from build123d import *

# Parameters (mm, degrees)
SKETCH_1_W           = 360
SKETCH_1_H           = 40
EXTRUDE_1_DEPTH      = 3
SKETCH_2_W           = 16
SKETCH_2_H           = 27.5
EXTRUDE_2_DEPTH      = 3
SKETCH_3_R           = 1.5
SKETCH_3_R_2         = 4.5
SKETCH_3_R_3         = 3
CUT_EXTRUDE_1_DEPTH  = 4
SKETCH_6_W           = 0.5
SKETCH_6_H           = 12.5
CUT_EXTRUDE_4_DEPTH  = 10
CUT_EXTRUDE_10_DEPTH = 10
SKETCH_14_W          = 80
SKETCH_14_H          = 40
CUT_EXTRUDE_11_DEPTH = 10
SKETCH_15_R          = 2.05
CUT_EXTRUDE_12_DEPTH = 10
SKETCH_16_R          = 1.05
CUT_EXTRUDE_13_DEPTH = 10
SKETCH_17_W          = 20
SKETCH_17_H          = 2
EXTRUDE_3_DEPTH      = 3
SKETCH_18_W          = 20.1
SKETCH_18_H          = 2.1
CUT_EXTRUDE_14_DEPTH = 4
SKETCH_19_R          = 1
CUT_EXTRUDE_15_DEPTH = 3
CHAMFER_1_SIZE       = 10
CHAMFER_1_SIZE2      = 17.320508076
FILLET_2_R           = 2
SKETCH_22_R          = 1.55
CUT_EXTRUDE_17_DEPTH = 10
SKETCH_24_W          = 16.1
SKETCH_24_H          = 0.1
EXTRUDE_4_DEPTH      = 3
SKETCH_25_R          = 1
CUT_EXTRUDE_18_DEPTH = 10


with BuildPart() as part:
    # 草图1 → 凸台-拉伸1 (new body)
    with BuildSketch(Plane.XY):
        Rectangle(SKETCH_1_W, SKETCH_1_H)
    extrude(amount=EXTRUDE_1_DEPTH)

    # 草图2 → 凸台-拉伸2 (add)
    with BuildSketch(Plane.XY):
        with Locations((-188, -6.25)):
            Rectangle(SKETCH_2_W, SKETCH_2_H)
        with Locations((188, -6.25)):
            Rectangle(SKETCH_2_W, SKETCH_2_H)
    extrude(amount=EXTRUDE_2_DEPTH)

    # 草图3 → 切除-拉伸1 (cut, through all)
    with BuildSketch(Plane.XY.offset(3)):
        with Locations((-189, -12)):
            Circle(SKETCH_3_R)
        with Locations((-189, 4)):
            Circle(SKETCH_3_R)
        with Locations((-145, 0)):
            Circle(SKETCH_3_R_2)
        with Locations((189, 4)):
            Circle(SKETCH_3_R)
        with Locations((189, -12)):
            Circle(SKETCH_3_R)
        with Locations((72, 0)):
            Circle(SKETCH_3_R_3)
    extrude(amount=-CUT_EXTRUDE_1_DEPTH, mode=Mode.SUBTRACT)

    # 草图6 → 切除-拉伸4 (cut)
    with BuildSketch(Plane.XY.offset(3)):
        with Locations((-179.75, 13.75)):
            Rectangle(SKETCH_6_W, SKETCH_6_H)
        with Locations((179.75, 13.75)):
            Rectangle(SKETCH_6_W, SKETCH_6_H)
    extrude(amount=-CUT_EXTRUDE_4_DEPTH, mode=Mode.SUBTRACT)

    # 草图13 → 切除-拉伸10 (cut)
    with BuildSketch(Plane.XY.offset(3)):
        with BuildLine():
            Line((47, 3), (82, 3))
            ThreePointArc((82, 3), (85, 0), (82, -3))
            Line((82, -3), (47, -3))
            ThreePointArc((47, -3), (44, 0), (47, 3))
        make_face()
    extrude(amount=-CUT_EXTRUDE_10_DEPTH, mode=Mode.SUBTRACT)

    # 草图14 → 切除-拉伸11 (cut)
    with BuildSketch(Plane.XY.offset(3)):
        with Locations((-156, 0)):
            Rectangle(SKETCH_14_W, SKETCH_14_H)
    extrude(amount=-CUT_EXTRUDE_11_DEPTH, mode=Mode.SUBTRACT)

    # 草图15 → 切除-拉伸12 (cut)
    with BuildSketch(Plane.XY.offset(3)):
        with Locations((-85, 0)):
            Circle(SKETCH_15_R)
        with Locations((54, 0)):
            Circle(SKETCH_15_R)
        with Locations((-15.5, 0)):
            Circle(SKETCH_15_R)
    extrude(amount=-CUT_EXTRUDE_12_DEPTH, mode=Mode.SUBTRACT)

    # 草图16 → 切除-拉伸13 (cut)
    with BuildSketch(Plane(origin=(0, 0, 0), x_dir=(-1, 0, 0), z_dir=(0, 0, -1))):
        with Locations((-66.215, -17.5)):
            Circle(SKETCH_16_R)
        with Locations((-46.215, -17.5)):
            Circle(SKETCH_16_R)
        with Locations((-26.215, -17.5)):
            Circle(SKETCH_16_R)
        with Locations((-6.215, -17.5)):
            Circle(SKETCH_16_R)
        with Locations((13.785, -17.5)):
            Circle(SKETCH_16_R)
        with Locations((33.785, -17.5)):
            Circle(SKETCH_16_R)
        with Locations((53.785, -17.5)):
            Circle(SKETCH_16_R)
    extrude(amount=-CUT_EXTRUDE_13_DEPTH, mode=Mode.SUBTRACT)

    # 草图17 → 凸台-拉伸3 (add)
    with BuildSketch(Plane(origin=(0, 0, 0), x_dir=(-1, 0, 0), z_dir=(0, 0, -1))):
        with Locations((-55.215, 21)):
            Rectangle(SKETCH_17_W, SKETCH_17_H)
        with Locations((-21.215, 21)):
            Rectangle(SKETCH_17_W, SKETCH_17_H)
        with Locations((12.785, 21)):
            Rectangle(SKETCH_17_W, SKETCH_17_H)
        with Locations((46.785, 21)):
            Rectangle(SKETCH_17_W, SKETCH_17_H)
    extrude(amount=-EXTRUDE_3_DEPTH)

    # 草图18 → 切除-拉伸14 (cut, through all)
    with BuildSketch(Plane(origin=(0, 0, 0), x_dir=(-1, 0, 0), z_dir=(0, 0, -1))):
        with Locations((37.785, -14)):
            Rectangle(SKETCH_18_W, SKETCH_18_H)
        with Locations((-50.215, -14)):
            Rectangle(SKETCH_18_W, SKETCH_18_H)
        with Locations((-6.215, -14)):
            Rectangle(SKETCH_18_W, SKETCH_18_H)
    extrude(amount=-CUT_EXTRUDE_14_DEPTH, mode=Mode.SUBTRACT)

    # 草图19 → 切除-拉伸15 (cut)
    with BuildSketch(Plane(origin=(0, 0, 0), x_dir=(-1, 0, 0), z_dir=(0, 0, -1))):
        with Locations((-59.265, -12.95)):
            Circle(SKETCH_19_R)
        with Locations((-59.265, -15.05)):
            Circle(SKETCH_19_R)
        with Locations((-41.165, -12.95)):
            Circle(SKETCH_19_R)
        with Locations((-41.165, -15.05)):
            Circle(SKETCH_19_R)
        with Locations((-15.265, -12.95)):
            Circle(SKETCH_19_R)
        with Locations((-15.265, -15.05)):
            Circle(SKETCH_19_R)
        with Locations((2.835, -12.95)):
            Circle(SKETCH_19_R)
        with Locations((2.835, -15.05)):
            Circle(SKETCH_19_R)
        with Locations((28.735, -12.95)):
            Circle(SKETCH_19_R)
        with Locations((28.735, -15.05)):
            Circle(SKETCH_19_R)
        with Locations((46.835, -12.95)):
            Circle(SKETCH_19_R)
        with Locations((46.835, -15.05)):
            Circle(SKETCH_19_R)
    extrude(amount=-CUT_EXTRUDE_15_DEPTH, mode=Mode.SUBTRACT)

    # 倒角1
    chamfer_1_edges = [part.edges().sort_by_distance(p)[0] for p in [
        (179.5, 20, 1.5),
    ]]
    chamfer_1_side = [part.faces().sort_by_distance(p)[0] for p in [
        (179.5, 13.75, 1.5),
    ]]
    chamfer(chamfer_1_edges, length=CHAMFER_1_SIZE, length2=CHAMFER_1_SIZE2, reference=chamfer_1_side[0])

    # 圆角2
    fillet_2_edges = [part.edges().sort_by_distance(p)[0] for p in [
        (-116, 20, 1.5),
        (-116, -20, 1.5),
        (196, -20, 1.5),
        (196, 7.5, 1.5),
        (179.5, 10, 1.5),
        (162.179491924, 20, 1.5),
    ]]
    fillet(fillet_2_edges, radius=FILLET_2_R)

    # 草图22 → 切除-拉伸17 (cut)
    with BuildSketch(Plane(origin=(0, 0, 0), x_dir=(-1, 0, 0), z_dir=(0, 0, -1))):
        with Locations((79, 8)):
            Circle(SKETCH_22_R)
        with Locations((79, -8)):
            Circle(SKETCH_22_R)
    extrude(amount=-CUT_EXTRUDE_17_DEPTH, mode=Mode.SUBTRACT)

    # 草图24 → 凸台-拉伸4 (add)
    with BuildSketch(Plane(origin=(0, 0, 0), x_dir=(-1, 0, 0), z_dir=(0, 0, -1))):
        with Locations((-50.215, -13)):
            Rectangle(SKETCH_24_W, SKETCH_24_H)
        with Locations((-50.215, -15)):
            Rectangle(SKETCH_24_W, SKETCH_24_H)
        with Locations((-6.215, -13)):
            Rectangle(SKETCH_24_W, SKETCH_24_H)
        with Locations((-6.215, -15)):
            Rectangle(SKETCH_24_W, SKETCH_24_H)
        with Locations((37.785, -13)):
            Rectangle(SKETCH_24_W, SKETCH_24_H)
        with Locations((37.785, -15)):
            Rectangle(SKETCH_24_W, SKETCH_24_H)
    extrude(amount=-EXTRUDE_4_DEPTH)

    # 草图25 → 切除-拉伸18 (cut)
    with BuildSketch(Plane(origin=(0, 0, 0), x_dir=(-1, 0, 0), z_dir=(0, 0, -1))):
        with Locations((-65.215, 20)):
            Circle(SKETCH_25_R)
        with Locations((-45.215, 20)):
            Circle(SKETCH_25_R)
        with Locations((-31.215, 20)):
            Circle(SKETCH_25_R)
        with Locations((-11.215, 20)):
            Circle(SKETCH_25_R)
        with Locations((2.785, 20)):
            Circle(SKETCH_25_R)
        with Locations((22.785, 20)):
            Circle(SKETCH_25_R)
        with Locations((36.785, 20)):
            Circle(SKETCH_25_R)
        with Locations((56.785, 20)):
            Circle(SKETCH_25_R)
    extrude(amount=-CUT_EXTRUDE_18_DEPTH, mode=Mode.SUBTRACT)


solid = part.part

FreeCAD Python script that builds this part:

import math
import FreeCAD as App
import Part
import Sketcher


def edges_at(feature, points):
    """Names of the edges that pass closest to the given points."""
    edges = feature.Shape.Edges
    near = lambda p: min(range(len(edges)), key=lambda i: edges[i].distToShape(Part.Vertex(*p))[0])
    return sorted({f"Edge{near(p) + 1}" for p in points})


def add_polygon(sketch, points):
    """Adds a closed chain of lines whose ends are joined by coincident constraints."""
    first, n = sketch.GeometryCount, len(points)
    for a, b in zip(points, points[1:] + points[:1]):
        sketch.addGeometry(Part.LineSegment(App.Vector(*a, 0), App.Vector(*b, 0)), False)
    for i in range(n):
        sketch.addConstraint(Sketcher.Constraint("Coincident", first + i, 2, first + (i + 1) % n, 1))

doc = App.newDocument("Part")
body = doc.addObject("PartDesign::Body", "Body")

# Sketch on XY plane
sketch1 = doc.addObject("Sketcher::SketchObject", "Sketch")
body.addObject(sketch1)
sketch1.AttachmentSupport = (doc.XY_Plane, [""])
sketch1.MapMode = "FlatFace"
add_polygon(sketch1, [(-180, 20), (-180, -20), (180, -20), (180, 20)])  # lines 0-3
sketch1.addConstraint(Sketcher.Constraint("Vertical", 0))
sketch1.addConstraint(Sketcher.Constraint("Horizontal", 1))
sketch1.addConstraint(Sketcher.Constraint("Vertical", 2))
sketch1.addConstraint(Sketcher.Constraint("Horizontal", 3))
sketch1.addConstraint(Sketcher.Constraint("Symmetric", 0, 2, 2, 2, -1, 1))
sketch1.addConstraint(Sketcher.Constraint("DistanceX", 1, 1, 1, 2, 360.0))
sketch1.addConstraint(Sketcher.Constraint("DistanceY", 0, 2, 0, 1, 40.0))
pad1 = doc.addObject("PartDesign::Pad", "Pad")
body.addObject(pad1)
pad1.Profile = sketch1
pad1.Length = 3

# Sketch on XY plane
sketch2 = doc.addObject("Sketcher::SketchObject", "Sketch001")
body.addObject(sketch2)
sketch2.AttachmentSupport = (doc.XY_Plane, [""])
sketch2.MapMode = "FlatFace"
add_polygon(sketch2, [(-196, 8), (-196, -20), (-180, -20), (-180, 8)])  # lines 0-3
add_polygon(sketch2, [(180, 8), (180, -20), (196, -20), (196, 8)])  # lines 4-7
sketch2.addConstraint(Sketcher.Constraint("Vertical", 0))
sketch2.addConstraint(Sketcher.Constraint("Horizontal", 1))
sketch2.addConstraint(Sketcher.Constraint("Vertical", 2))
sketch2.addConstraint(Sketcher.Constraint("Horizontal", 3))
sketch2.addConstraint(Sketcher.Constraint("Vertical", 4))
sketch2.addConstraint(Sketcher.Constraint("Horizontal", 5))
sketch2.addConstraint(Sketcher.Constraint("Vertical", 6))
sketch2.addConstraint(Sketcher.Constraint("Horizontal", 7))
sketch2.addConstraint(Sketcher.Constraint("Symmetric", 1, 2, 4, 2, -2))
sketch2.addConstraint(Sketcher.Constraint("Symmetric", 3, 2, 6, 2, -2))
sketch2.addConstraint(Sketcher.Constraint("DistanceX", 1, 1, 1, 2, 16.0))
sketch2.addConstraint(Sketcher.Constraint("DistanceY", 0, 2, 0, 1, 27.5))
sketch2.addConstraint(Sketcher.Constraint("DistanceX", 0, 2, -1, 1, 196.0))
sketch2.addConstraint(Sketcher.Constraint("DistanceY", 0, 2, -1, 1, 20.0))
pad2 = doc.addObject("PartDesign::Pad", "Pad001")
body.addObject(pad2)
pad2.Profile = sketch2
pad2.Length = 3

# Sketch on XY plane
sketch3 = doc.addObject("Sketcher::SketchObject", "Sketch002")
body.addObject(sketch3)
sketch3.AttachmentSupport = (doc.XY_Plane, [""])
sketch3.MapMode = "FlatFace"
sketch3.AttachmentOffset = App.Placement(App.Vector(0, 0, 3), App.Rotation())
sketch3.addGeometry(Part.Circle(App.Vector(-189, -12, 0), App.Vector(0, 0, 1), 1.5), False)
sketch3.addGeometry(Part.Circle(App.Vector(-189, 4, 0), App.Vector(0, 0, 1), 1.5), False)
sketch3.addGeometry(Part.Circle(App.Vector(-145, 0, 0), App.Vector(0, 0, 1), 4.5), False)
sketch3.addGeometry(Part.Circle(App.Vector(189, 4, 0), App.Vector(0, 0, 1), 1.5), False)
sketch3.addGeometry(Part.Circle(App.Vector(189, -12, 0), App.Vector(0, 0, 1), 1.5), False)
sketch3.addGeometry(Part.Circle(App.Vector(72, 0, 0), App.Vector(0, 0, 1), 3), False)
sketch3.addConstraint(Sketcher.Constraint("Equal", 0, 1))
sketch3.addConstraint(Sketcher.Constraint("Equal", 1, 3))
sketch3.addConstraint(Sketcher.Constraint("Equal", 3, 4))
sketch3.addConstraint(Sketcher.Constraint("Symmetric", 1, 3, 3, 3, -2))
sketch3.addConstraint(Sketcher.Constraint("Symmetric", 0, 3, 4, 3, -2))
sketch3.addConstraint(Sketcher.Constraint("PointOnObject", 2, 3, -1))
sketch3.addConstraint(Sketcher.Constraint("PointOnObject", 5, 3, -1))
sketch3.addConstraint(Sketcher.Constraint("Vertical", 0, 3, 1, 3))
sketch3.addConstraint(Sketcher.Constraint("Diameter", 0, 3.0))
sketch3.addConstraint(Sketcher.Constraint("Diameter", 2, 9.0))
sketch3.addConstraint(Sketcher.Constraint("Diameter", 5, 6.0))
sketch3.addConstraint(Sketcher.Constraint("DistanceX", 0, 3, -1, 1, 189.0))
sketch3.addConstraint(Sketcher.Constraint("DistanceY", 0, 3, -1, 1, 12.0))
sketch3.addConstraint(Sketcher.Constraint("DistanceY", -1, 1, 1, 3, 4.0))
sketch3.addConstraint(Sketcher.Constraint("DistanceX", 2, 3, -1, 1, 145.0))
sketch3.addConstraint(Sketcher.Constraint("DistanceX", -1, 1, 5, 3, 72.0))
pocket1 = doc.addObject("PartDesign::Pocket", "Pocket")
body.addObject(pocket1)
pocket1.Profile = sketch3
pocket1.Type = "ThroughAll"

# Sketch on XY plane
sketch4 = doc.addObject("Sketcher::SketchObject", "Sketch003")
body.addObject(sketch4)
sketch4.AttachmentSupport = (doc.XY_Plane, [""])
sketch4.MapMode = "FlatFace"
sketch4.AttachmentOffset = App.Placement(App.Vector(0, 0, 3), App.Rotation())
add_polygon(sketch4, [(-180, 20), (-180, 7.5), (-179.5, 7.5), (-179.5, 20)])  # lines 0-3
add_polygon(sketch4, [(179.5, 20), (179.5, 7.5), (180, 7.5), (180, 20)])  # lines 4-7
sketch4.addConstraint(Sketcher.Constraint("Vertical", 0))
sketch4.addConstraint(Sketcher.Constraint("Horizontal", 1))
sketch4.addConstraint(Sketcher.Constraint("Vertical", 2))
sketch4.addConstraint(Sketcher.Constraint("Horizontal", 3))
sketch4.addConstraint(Sketcher.Constraint("Vertical", 4))
sketch4.addConstraint(Sketcher.Constraint("Horizontal", 5))
sketch4.addConstraint(Sketcher.Constraint("Vertical", 6))
sketch4.addConstraint(Sketcher.Constraint("Horizontal", 7))
sketch4.addConstraint(Sketcher.Constraint("Symmetric", 1, 2, 4, 2, -2))
sketch4.addConstraint(Sketcher.Constraint("Symmetric", 3, 2, 6, 2, -2))
sketch4.addConstraint(Sketcher.Constraint("DistanceX", 1, 1, 1, 2, 0.5))
sketch4.addConstraint(Sketcher.Constraint("DistanceY", 0, 2, 0, 1, 12.5))
sketch4.addConstraint(Sketcher.Constraint("DistanceX", 0, 2, -1, 1, 180.0))
sketch4.addConstraint(Sketcher.Constraint("DistanceY", -1, 1, 2, 2, 20.0))
pocket2 = doc.addObject("PartDesign::Pocket", "Pocket001")
body.addObject(pocket2)
pocket2.Profile = sketch4
pocket2.Length = 10

# Sketch on XY plane
sketch5 = doc.addObject("Sketcher::SketchObject", "Sketch004")
body.addObject(sketch5)
sketch5.AttachmentSupport = (doc.XY_Plane, [""])
sketch5.MapMode = "FlatFace"
sketch5.AttachmentOffset = App.Placement(App.Vector(0, 0, 3), App.Rotation())
sketch5.addGeometry(Part.LineSegment(App.Vector(82, 3, 0), App.Vector(47, 3, 0)), False)
sketch5.addGeometry(Part.ArcOfCircle(Part.Circle(App.Vector(47, 0, 0), App.Vector(0, 0, 1), 3), math.radians(90), math.radians(270)), False)
sketch5.addGeometry(Part.LineSegment(App.Vector(47, -3, 0), App.Vector(82, -3, 0)), False)
sketch5.addGeometry(Part.ArcOfCircle(Part.Circle(App.Vector(82, 0, 0), App.Vector(0, 0, 1), 3), math.radians(-90), math.radians(90)), False)
sketch5.addConstraint(Sketcher.Constraint("Tangent", 0, 2, 1, 1))
sketch5.addConstraint(Sketcher.Constraint("Tangent", 1, 2, 2, 1))
sketch5.addConstraint(Sketcher.Constraint("Tangent", 2, 2, 3, 1))
sketch5.addConstraint(Sketcher.Constraint("Tangent", 3, 2, 0, 1))
sketch5.addConstraint(Sketcher.Constraint("Horizontal", 0))
sketch5.addConstraint(Sketcher.Constraint("Horizontal", 2))
sketch5.addConstraint(Sketcher.Constraint("PointOnObject", 1, 3, -1))
sketch5.addConstraint(Sketcher.Constraint("Radius", 1, 3.0))
sketch5.addConstraint(Sketcher.Constraint("DistanceX", 0, 2, 0, 1, 35.0))
sketch5.addConstraint(Sketcher.Constraint("DistanceX", -1, 1, 1, 3, 47.0))
pocket3 = doc.addObject("PartDesign::Pocket", "Pocket002")
body.addObject(pocket3)
pocket3.Profile = sketch5
pocket3.Length = 10

# Sketch on XY plane
sketch6 = doc.addObject("Sketcher::SketchObject", "Sketch005")
body.addObject(sketch6)
sketch6.AttachmentSupport = (doc.XY_Plane, [""])
sketch6.MapMode = "FlatFace"
sketch6.AttachmentOffset = App.Placement(App.Vector(0, 0, 3), App.Rotation())
add_polygon(sketch6, [(-196, 20), (-196, -20), (-116, -20), (-116, 20)])  # lines 0-3
sketch6.addConstraint(Sketcher.Constraint("Vertical", 0))
sketch6.addConstraint(Sketcher.Constraint("Horizontal", 1))
sketch6.addConstraint(Sketcher.Constraint("Vertical", 2))
sketch6.addConstraint(Sketcher.Constraint("Horizontal", 3))
sketch6.addConstraint(Sketcher.Constraint("DistanceX", 1, 1, 1, 2, 80.0))
sketch6.addConstraint(Sketcher.Constraint("DistanceY", 0, 2, 0, 1, 40.0))
sketch6.addConstraint(Sketcher.Constraint("DistanceX", 0, 2, -1, 1, 196.0))
sketch6.addConstraint(Sketcher.Constraint("DistanceY", 0, 2, -1, 1, 20.0))
pocket4 = doc.addObject("PartDesign::Pocket", "Pocket003")
body.addObject(pocket4)
pocket4.Profile = sketch6
pocket4.Length = 10

# Sketch on XY plane
sketch7 = doc.addObject("Sketcher::SketchObject", "Sketch006")
body.addObject(sketch7)
sketch7.AttachmentSupport = (doc.XY_Plane, [""])
sketch7.MapMode = "FlatFace"
sketch7.AttachmentOffset = App.Placement(App.Vector(0, 0, 3), App.Rotation())
sketch7.addGeometry(Part.Circle(App.Vector(-85, 0, 0), App.Vector(0, 0, 1), 2), False)
sketch7.addGeometry(Part.Circle(App.Vector(54, 0, 0), App.Vector(0, 0, 1), 2), False)
sketch7.addGeometry(Part.Circle(App.Vector(-15.5, 0, 0), App.Vector(0, 0, 1), 2), False)
sketch7.addConstraint(Sketcher.Constraint("Equal", 0, 1))
sketch7.addConstraint(Sketcher.Constraint("Equal", 1, 2))
sketch7.addConstraint(Sketcher.Constraint("PointOnObject", 0, 3, -1))
sketch7.addConstraint(Sketcher.Constraint("PointOnObject", 1, 3, -1))
sketch7.addConstraint(Sketcher.Constraint("PointOnObject", 2, 3, -1))
sketch7.addConstraint(Sketcher.Constraint("Diameter", 0, 4.1))
sketch7.addConstraint(Sketcher.Constraint("DistanceX", 0, 3, -1, 1, 85.0))
sketch7.addConstraint(Sketcher.Constraint("DistanceX", -1, 1, 1, 3, 54.0))
sketch7.addConstraint(Sketcher.Constraint("DistanceX", 2, 3, -1, 1, 15.5))
pocket5 = doc.addObject("PartDesign::Pocket", "Pocket004")
body.addObject(pocket5)
pocket5.Profile = sketch7
pocket5.Length = 10

# Sketch on XY plane
sketch8 = doc.addObject("Sketcher::SketchObject", "Sketch007")
body.addObject(sketch8)
sketch8.AttachmentSupport = (doc.XY_Plane, [""])
sketch8.MapMode = "FlatFace"
sketch8.addGeometry(Part.Circle(App.Vector(66.2, -17.5, 0), App.Vector(0, 0, 1), 1.1), False)
sketch8.addGeometry(Part.Circle(App.Vector(46.2, -17.5, 0), App.Vector(0, 0, 1), 1.1), False)
sketch8.addGeometry(Part.Circle(App.Vector(26.2, -17.5, 0), App.Vector(0, 0, 1), 1.1), False)
sketch8.addGeometry(Part.Circle(App.Vector(6.2, -17.5, 0), App.Vector(0, 0, 1), 1.1), False)
sketch8.addGeometry(Part.Circle(App.Vector(-13.8, -17.5, 0), App.Vector(0, 0, 1), 1.1), False)
sketch8.addGeometry(Part.Circle(App.Vector(-33.8, -17.5, 0), App.Vector(0, 0, 1), 1.1), False)
sketch8.addGeometry(Part.Circle(App.Vector(-53.8, -17.5, 0), App.Vector(0, 0, 1), 1.1), False)
sketch8.addConstraint(Sketcher.Constraint("Equal", 0, 1))
sketch8.addConstraint(Sketcher.Constraint("Equal", 1, 2))
sketch8.addConstraint(Sketcher.Constraint("Equal", 2, 3))
sketch8.addConstraint(Sketcher.Constraint("Equal", 3, 4))
sketch8.addConstraint(Sketcher.Constraint("Equal", 4, 5))
sketch8.addConstraint(Sketcher.Constraint("Equal", 5, 6))
sketch8.addConstraint(Sketcher.Constraint("Horizontal", 0, 3, 1, 3))
sketch8.addConstraint(Sketcher.Constraint("Horizontal", 1, 3, 2, 3))
sketch8.addConstraint(Sketcher.Constraint("Horizontal", 2, 3, 3, 3))
sketch8.addConstraint(Sketcher.Constraint("Horizontal", 3, 3, 4, 3))
sketch8.addConstraint(Sketcher.Constraint("Horizontal", 4, 3, 5, 3))
sketch8.addConstraint(Sketcher.Constraint("Horizontal", 5, 3, 6, 3))
sketch8.addConstraint(Sketcher.Constraint("Diameter", 0, 2.1))
sketch8.addConstraint(Sketcher.Constraint("DistanceX", 1, 3, 0, 3, 20.0))
sketch8.addConstraint(Sketcher.Constraint("DistanceX", 2, 3, 1, 3, 20.0))
sketch8.addConstraint(Sketcher.Constraint("DistanceX", 3, 3, 2, 3, 20.0))
sketch8.addConstraint(Sketcher.Constraint("DistanceX", 4, 3, 3, 3, 20.0))
sketch8.addConstraint(Sketcher.Constraint("DistanceX", 5, 3, 4, 3, 20.0))
sketch8.addConstraint(Sketcher.Constraint("DistanceX", 6, 3, 5, 3, 20.0))
sketch8.addConstraint(Sketcher.Constraint("DistanceY", 0, 3, -1, 1, 17.5))
sketch8.addConstraint(Sketcher.Constraint("DistanceX", -1, 1, 0, 3, 66.215))
pocket6 = doc.addObject("PartDesign::Pocket", "Pocket005")
body.addObject(pocket6)
pocket6.Profile = sketch8
pocket6.Length = 10
pocket6.Reversed = True

# Sketch on XY plane
sketch9 = doc.addObject("Sketcher::SketchObject", "Sketch008")
body.addObject(sketch9)
sketch9.AttachmentSupport = (doc.XY_Plane, [""])
sketch9.MapMode = "FlatFace"
add_polygon(sketch9, [(65.2, 22), (65.2, 20), (45.2, 20), (45.2, 22)])  # lines 0-3
add_polygon(sketch9, [(31.2, 22), (31.2, 20), (11.2, 20), (11.2, 22)])  # lines 4-7
add_polygon(sketch9, [(-2.8, 22), (-2.8, 20), (-22.8, 20), (-22.8, 22)])  # lines 8-11
add_polygon(sketch9, [(-36.8, 22), (-36.8, 20), (-56.8, 20), (-56.8, 22)])  # lines 12-15
sketch9.addConstraint(Sketcher.Constraint("Vertical", 0))
sketch9.addConstraint(Sketcher.Constraint("Horizontal", 1))
sketch9.addConstraint(Sketcher.Constraint("Vertical", 2))
sketch9.addConstraint(Sketcher.Constraint("Horizontal", 3))
sketch9.addConstraint(Sketcher.Constraint("Vertical", 4))
sketch9.addConstraint(Sketcher.Constraint("Horizontal", 5))
sketch9.addConstraint(Sketcher.Constraint("Vertical", 6))
sketch9.addConstraint(Sketcher.Constraint("Horizontal", 7))
sketch9.addConstraint(Sketcher.Constraint("Vertical", 8))
sketch9.addConstraint(Sketcher.Constraint("Horizontal", 9))
sketch9.addConstraint(Sketcher.Constraint("Vertical", 10))
sketch9.addConstraint(Sketcher.Constraint("Horizontal", 11))
sketch9.addConstraint(Sketcher.Constraint("Vertical", 12))
sketch9.addConstraint(Sketcher.Constraint("Horizontal", 13))
sketch9.addConstraint(Sketcher.Constraint("Vertical", 14))
sketch9.addConstraint(Sketcher.Constraint("Horizontal", 15))
sketch9.addConstraint(Sketcher.Constraint("Horizontal", 1, 2, 4, 2))
sketch9.addConstraint(Sketcher.Constraint("Horizontal", 3, 2, 6, 2))
sketch9.addConstraint(Sketcher.Constraint("Horizontal", 5, 2, 8, 2))
sketch9.addConstraint(Sketcher.Constraint("Horizontal", 7, 2, 10, 2))
sketch9.addConstraint(Sketcher.Constraint("Horizontal", 9, 2, 12, 2))
sketch9.addConstraint(Sketcher.Constraint("Horizontal", 11, 2, 14, 2))
sketch9.addConstraint(Sketcher.Constraint("Equal", 3, 5))
sketch9.addConstraint(Sketcher.Constraint("Equal", 7, 9))
sketch9.addConstraint(Sketcher.Constraint("Equal", 11, 13))
sketch9.addConstraint(Sketcher.Constraint("DistanceX", 1, 2, 1, 1, 20.0))
sketch9.addConstraint(Sketcher.Constraint("DistanceY", 0, 2, 0, 1, 2.0))
sketch9.addConstraint(Sketcher.Constraint("DistanceY", -1, 1, 0, 2, 20.0))
sketch9.addConstraint(Sketcher.Constraint("DistanceX", 4, 2, 1, 2, 14.0))
sketch9.addConstraint(Sketcher.Constraint("DistanceX", 8, 2, 5, 2, 14.0))
sketch9.addConstraint(Sketcher.Constraint("DistanceX", 12, 2, 9, 2, 14.0))
sketch9.addConstraint(Sketcher.Constraint("DistanceX", -1, 1, 0, 2, 65.215))
pad3 = doc.addObject("PartDesign::Pad", "Pad002")
body.addObject(pad3)
pad3.Profile = sketch9
pad3.Length = 3

# Sketch on XY plane
sketch10 = doc.addObject("Sketcher::SketchObject", "Sketch009")
body.addObject(sketch10)
sketch10.AttachmentSupport = (doc.XY_Plane, [""])
sketch10.MapMode = "FlatFace"
add_polygon(sketch10, [(-27.7, -12.9), (-27.7, -15.1), (-47.8, -15.1), (-47.8, -12.9)])  # lines 0-3
add_polygon(sketch10, [(60.3, -12.9), (60.3, -15.1), (40.2, -15.1), (40.2, -12.9)])  # lines 4-7
add_polygon(sketch10, [(16.3, -12.9), (16.3, -15.1), (-3.8, -15.1), (-3.8, -12.9)])  # lines 8-11
sketch10.addConstraint(Sketcher.Constraint("Vertical", 0))
sketch10.addConstraint(Sketcher.Constraint("Horizontal", 1))
sketch10.addConstraint(Sketcher.Constraint("Vertical", 2))
sketch10.addConstraint(Sketcher.Constraint("Horizontal", 3))
sketch10.addConstraint(Sketcher.Constraint("Vertical", 4))
sketch10.addConstraint(Sketcher.Constraint("Horizontal", 5))
sketch10.addConstraint(Sketcher.Constraint("Vertical", 6))
sketch10.addConstraint(Sketcher.Constraint("Horizontal", 7))
sketch10.addConstraint(Sketcher.Constraint("Vertical", 8))
sketch10.addConstraint(Sketcher.Constraint("Horizontal", 9))
sketch10.addConstraint(Sketcher.Constraint("Vertical", 10))
sketch10.addConstraint(Sketcher.Constraint("Horizontal", 11))
sketch10.addConstraint(Sketcher.Constraint("Horizontal", 1, 2, 4, 2))
sketch10.addConstraint(Sketcher.Constraint("Horizontal", 3, 2, 6, 2))
sketch10.addConstraint(Sketcher.Constraint("Horizontal", 5, 2, 8, 2))
sketch10.addConstraint(Sketcher.Constraint("Horizontal", 7, 2, 10, 2))
sketch10.addConstraint(Sketcher.Constraint("Equal", 3, 5))
sketch10.addConstraint(Sketcher.Constraint("Equal", 7, 9))
sketch10.addConstraint(Sketcher.Constraint("DistanceX", 1, 2, 1, 1, 20.1))
sketch10.addConstraint(Sketcher.Constraint("DistanceY", 0, 2, 0, 1, 2.1))
sketch10.addConstraint(Sketcher.Constraint("DistanceX", 0, 2, 4, 2, 88.0))
sketch10.addConstraint(Sketcher.Constraint("DistanceX", 0, 2, 8, 2, 44.0))
sketch10.addConstraint(Sketcher.Constraint("DistanceY", 0, 2, -1, 1, 15.05))
sketch10.addConstraint(Sketcher.Constraint("DistanceX", 0, 2, -1, 1, 27.735))
pocket7 = doc.addObject("PartDesign::Pocket", "Pocket006")
body.addObject(pocket7)
pocket7.Profile = sketch10
pocket7.Type = "ThroughAll"
pocket7.Reversed = True

# Sketch on XY plane
sketch11 = doc.addObject("Sketcher::SketchObject", "Sketch010")
body.addObject(sketch11)
sketch11.AttachmentSupport = (doc.XY_Plane, [""])
sketch11.MapMode = "FlatFace"
sketch11.addGeometry(Part.Circle(App.Vector(59.3, -12.9, 0), App.Vector(0, 0, 1), 1), False)
sketch11.addGeometry(Part.Circle(App.Vector(59.3, -15.1, 0), App.Vector(0, 0, 1), 1), False)
sketch11.addGeometry(Part.Circle(App.Vector(41.2, -12.9, 0), App.Vector(0, 0, 1), 1), False)
sketch11.addGeometry(Part.Circle(App.Vector(41.2, -15.1, 0), App.Vector(0, 0, 1), 1), False)
sketch11.addGeometry(Part.Circle(App.Vector(15.3, -12.9, 0), App.Vector(0, 0, 1), 1), False)
sketch11.addGeometry(Part.Circle(App.Vector(15.3, -15.1, 0), App.Vector(0, 0, 1), 1), False)
sketch11.addGeometry(Part.Circle(App.Vector(-2.8, -12.9, 0), App.Vector(0, 0, 1), 1), False)
sketch11.addGeometry(Part.Circle(App.Vector(-2.8, -15.1, 0), App.Vector(0, 0, 1), 1), False)
sketch11.addGeometry(Part.Circle(App.Vector(-28.7, -12.9, 0), App.Vector(0, 0, 1), 1), False)
sketch11.addGeometry(Part.Circle(App.Vector(-28.7, -15.1, 0), App.Vector(0, 0, 1), 1), False)
sketch11.addGeometry(Part.Circle(App.Vector(-46.8, -12.9, 0), App.Vector(0, 0, 1), 1), False)
sketch11.addGeometry(Part.Circle(App.Vector(-46.8, -15.1, 0), App.Vector(0, 0, 1), 1), False)
sketch11.addConstraint(Sketcher.Constraint("Equal", 0, 1))
sketch11.addConstraint(Sketcher.Constraint("Equal", 1, 2))
sketch11.addConstraint(Sketcher.Constraint("Equal", 2, 3))
sketch11.addConstraint(Sketcher.Constraint("Equal", 3, 4))
sketch11.addConstraint(Sketcher.Constraint("Equal", 4, 5))
sketch11.addConstraint(Sketcher.Constraint("Equal", 5, 6))
sketch11.addConstraint(Sketcher.Constraint("Equal", 6, 7))
sketch11.addConstraint(Sketcher.Constraint("Equal", 7, 8))
sketch11.addConstraint(Sketcher.Constraint("Equal", 8, 9))
sketch11.addConstraint(Sketcher.Constraint("Equal", 9, 10))
sketch11.addConstraint(Sketcher.Constraint("Equal", 10, 11))
sketch11.addConstraint(Sketcher.Constraint("Horizontal", 0, 3, 2, 3))
sketch11.addConstraint(Sketcher.Constraint("Horizontal", 1, 3, 3, 3))
sketch11.addConstraint(Sketcher.Constraint("Horizontal", 2, 3, 4, 3))
sketch11.addConstraint(Sketcher.Constraint("Horizontal", 3, 3, 5, 3))
sketch11.addConstraint(Sketcher.Constraint("Horizontal", 4, 3, 6, 3))
sketch11.addConstraint(Sketcher.Constraint("Horizontal", 5, 3, 7, 3))
sketch11.addConstraint(Sketcher.Constraint("Horizontal", 6, 3, 8, 3))
sketch11.addConstraint(Sketcher.Constraint("Horizontal", 7, 3, 9, 3))
sketch11.addConstraint(Sketcher.Constraint("Horizontal", 8, 3, 10, 3))
sketch11.addConstraint(Sketcher.Constraint("Horizontal", 9, 3, 11, 3))
sketch11.addConstraint(Sketcher.Constraint("Vertical", 0, 3, 1, 3))
sketch11.addConstraint(Sketcher.Constraint("Vertical", 2, 3, 3, 3))
sketch11.addConstraint(Sketcher.Constraint("Vertical", 4, 3, 5, 3))
sketch11.addConstraint(Sketcher.Constraint("Vertical", 6, 3, 7, 3))
sketch11.addConstraint(Sketcher.Constraint("Vertical", 8, 3, 9, 3))
sketch11.addConstraint(Sketcher.Constraint("Vertical", 10, 3, 11, 3))
sketch11.addConstraint(Sketcher.Constraint("Diameter", 0, 2.0))
sketch11.addConstraint(Sketcher.Constraint("DistanceX", 4, 3, 0, 3, 44.0))
sketch11.addConstraint(Sketcher.Constraint("DistanceX", 6, 3, 2, 3, 44.0))
sketch11.addConstraint(Sketcher.Constraint("DistanceX", 8, 3, 4, 3, 44.0))
sketch11.addConstraint(Sketcher.Constraint("DistanceX", 10, 3, 6, 3, 44.0))
sketch11.addConstraint(Sketcher.Constraint("DistanceY", 1, 3, 0, 3, 2.1))
sketch11.addConstraint(Sketcher.Constraint("DistanceX", 2, 3, 0, 3, 18.1))
sketch11.addConstraint(Sketcher.Constraint("DistanceY", 0, 3, -1, 1, 12.95))
sketch11.addConstraint(Sketcher.Constraint("DistanceX", -1, 1, 0, 3, 59.265))
pocket8 = doc.addObject("PartDesign::Pocket", "Pocket007")
body.addObject(pocket8)
pocket8.Profile = sketch11
pocket8.Length = 3
pocket8.Reversed = True
doc.recompute()

chamfer = doc.addObject("PartDesign::Chamfer", "Chamfer")
body.addObject(chamfer)
chamfer.Base = (pocket8, edges_at(pocket8, [(179.5, 20, 1.5)]))
chamfer.ChamferType = "Two distances"
chamfer.Size = 10
chamfer.Size2 = 17.320508
doc.recompute()

fillet = doc.addObject("PartDesign::Fillet", "Fillet")
body.addObject(fillet)
fillet.Base = (chamfer, edges_at(chamfer, [
    (-116, 20, 1.5),
    (-116, -20, 1.5),
    (196, -20, 1.5),
    (196, 7.5, 1.5),
    (179.5, 10, 1.5),
    (162.179, 20, 1.5),
]))
fillet.Radius = 2

# Sketch on XY plane
sketch12 = doc.addObject("Sketcher::SketchObject", "Sketch011")
body.addObject(sketch12)
sketch12.AttachmentSupport = (doc.XY_Plane, [""])
sketch12.MapMode = "FlatFace"
sketch12.addGeometry(Part.Circle(App.Vector(-79, 8, 0), App.Vector(0, 0, 1), 1.6), False)
sketch12.addGeometry(Part.Circle(App.Vector(-79, -8, 0), App.Vector(0, 0, 1), 1.6), False)
sketch12.addConstraint(Sketcher.Constraint("Equal", 0, 1))
sketch12.addConstraint(Sketcher.Constraint("Symmetric", 0, 3, 1, 3, -1))
sketch12.addConstraint(Sketcher.Constraint("Diameter", 0, 3.1))
sketch12.addConstraint(Sketcher.Constraint("DistanceX", 0, 3, -1, 1, 79.0))
sketch12.addConstraint(Sketcher.Constraint("DistanceY", -1, 1, 0, 3, 8.0))
pocket9 = doc.addObject("PartDesign::Pocket", "Pocket008")
body.addObject(pocket9)
pocket9.Profile = sketch12
pocket9.Length = 10
pocket9.Reversed = True

# Sketch on XY plane
sketch13 = doc.addObject("Sketcher::SketchObject", "Sketch012")
body.addObject(sketch13)
sketch13.AttachmentSupport = (doc.XY_Plane, [""])
sketch13.MapMode = "FlatFace"
add_polygon(sketch13, [(58.27, -12.95), (58.27, -13.05), (42.16, -13.05), (42.16, -12.95)])  # lines 0-3
add_polygon(sketch13, [(58.27, -14.95), (58.27, -15.05), (42.16, -15.05), (42.16, -14.95)])  # lines 4-7
add_polygon(sketch13, [(14.27, -12.95), (14.27, -13.05), (-1.83, -13.05), (-1.83, -12.95)])  # lines 8-11
add_polygon(sketch13, [(14.27, -14.95), (14.27, -15.05), (-1.83, -15.05), (-1.83, -14.95)])  # lines 12-15
add_polygon(sketch13, [(-29.73, -12.95), (-29.73, -13.05), (-45.84, -13.05), (-45.84, -12.95)])  # lines 16-19
add_polygon(sketch13, [(-29.73, -14.95), (-29.73, -15.05), (-45.84, -15.05), (-45.84, -14.95)])  # lines 20-23
sketch13.addConstraint(Sketcher.Constraint("Vertical", 0))
sketch13.addConstraint(Sketcher.Constraint("Horizontal", 1))
sketch13.addConstraint(Sketcher.Constraint("Vertical", 2))
sketch13.addConstraint(Sketcher.Constraint("Horizontal", 3))
sketch13.addConstraint(Sketcher.Constraint("Vertical", 4))
sketch13.addConstraint(Sketcher.Constraint("Horizontal", 5))
sketch13.addConstraint(Sketcher.Constraint("Vertical", 6))
sketch13.addConstraint(Sketcher.Constraint("Horizontal", 7))
sketch13.addConstraint(Sketcher.Constraint("Vertical", 8))
sketch13.addConstraint(Sketcher.Constraint("Horizontal", 9))
sketch13.addConstraint(Sketcher.Constraint("Vertical", 10))
sketch13.addConstraint(Sketcher.Constraint("Horizontal", 11))
sketch13.addConstraint(Sketcher.Constraint("Vertical", 12))
sketch13.addConstraint(Sketcher.Constraint("Horizontal", 13))
sketch13.addConstraint(Sketcher.Constraint("Vertical", 14))
sketch13.addConstraint(Sketcher.Constraint("Horizontal", 15))
sketch13.addConstraint(Sketcher.Constraint("Vertical", 16))
sketch13.addConstraint(Sketcher.Constraint("Horizontal", 17))
sketch13.addConstraint(Sketcher.Constraint("Vertical", 18))
sketch13.addConstraint(Sketcher.Constraint("Horizontal", 19))
sketch13.addConstraint(Sketcher.Constraint("Vertical", 20))
sketch13.addConstraint(Sketcher.Constraint("Horizontal", 21))
sketch13.addConstraint(Sketcher.Constraint("Vertical", 22))
sketch13.addConstraint(Sketcher.Constraint("Horizontal", 23))
sketch13.addConstraint(Sketcher.Constraint("Horizontal", 1, 2, 8, 2))
sketch13.addConstraint(Sketcher.Constraint("Horizontal", 3, 2, 10, 2))
sketch13.addConstraint(Sketcher.Constraint("Horizontal", 5, 2, 12, 2))
sketch13.addConstraint(Sketcher.Constraint("Horizontal", 7, 2, 14, 2))
sketch13.addConstraint(Sketcher.Constraint("Horizontal", 9, 2, 16, 2))
sketch13.addConstraint(Sketcher.Constraint("Horizontal", 11, 2, 18, 2))
sketch13.addConstraint(Sketcher.Constraint("Horizontal", 13, 2, 20, 2))
sketch13.addConstraint(Sketcher.Constraint("Horizontal", 15, 2, 22, 2))
sketch13.addConstraint(Sketcher.Constraint("Vertical", 3, 2, 4, 2))
sketch13.addConstraint(Sketcher.Constraint("Vertical", 2, 2, 5, 2))
sketch13.addConstraint(Sketcher.Constraint("Vertical", 11, 2, 12, 2))
sketch13.addConstraint(Sketcher.Constraint("Vertical", 10, 2, 13, 2))
sketch13.addConstraint(Sketcher.Constraint("Vertical", 19, 2, 20, 2))
sketch13.addConstraint(Sketcher.Constraint("Vertical", 18, 2, 21, 2))
sketch13.addConstraint(Sketcher.Constraint("Equal", 7, 9))
sketch13.addConstraint(Sketcher.Constraint("Equal", 15, 17))
sketch13.addConstraint(Sketcher.Constraint("Equal", 2, 4))
sketch13.addConstraint(Sketcher.Constraint("DistanceX", 1, 2, 1, 1, 16.1))
sketch13.addConstraint(Sketcher.Constraint("DistanceY", 0, 2, 0, 1, 0.1))
sketch13.addConstraint(Sketcher.Constraint("DistanceY", 4, 2, 0, 2, 2.0))
sketch13.addConstraint(Sketcher.Constraint("DistanceX", 8, 2, 0, 2, 44.0))
sketch13.addConstraint(Sketcher.Constraint("DistanceX", 16, 2, 8, 2, 44.0))
sketch13.addConstraint(Sketcher.Constraint("DistanceY", 0, 2, -1, 1, 13.05))
sketch13.addConstraint(Sketcher.Constraint("DistanceX", -1, 1, 0, 2, 58.265))
pad4 = doc.addObject("PartDesign::Pad", "Pad003")
body.addObject(pad4)
pad4.Profile = sketch13
pad4.Length = 3

# Sketch on XY plane
sketch14 = doc.addObject("Sketcher::SketchObject", "Sketch013")
body.addObject(sketch14)
sketch14.AttachmentSupport = (doc.XY_Plane, [""])
sketch14.MapMode = "FlatFace"
sketch14.addGeometry(Part.Circle(App.Vector(65.2, 20, 0), App.Vector(0, 0, 1), 1), False)
sketch14.addGeometry(Part.Circle(App.Vector(45.2, 20, 0), App.Vector(0, 0, 1), 1), False)
sketch14.addGeometry(Part.Circle(App.Vector(31.2, 20, 0), App.Vector(0, 0, 1), 1), False)
sketch14.addGeometry(Part.Circle(App.Vector(11.2, 20, 0), App.Vector(0, 0, 1), 1), False)
sketch14.addGeometry(Part.Circle(App.Vector(-2.8, 20, 0), App.Vector(0, 0, 1), 1), False)
sketch14.addGeometry(Part.Circle(App.Vector(-22.8, 20, 0), App.Vector(0, 0, 1), 1), False)
sketch14.addGeometry(Part.Circle(App.Vector(-36.8, 20, 0), App.Vector(0, 0, 1), 1), False)
sketch14.addGeometry(Part.Circle(App.Vector(-56.8, 20, 0), App.Vector(0, 0, 1), 1), False)
sketch14.addConstraint(Sketcher.Constraint("Equal", 0, 1))
sketch14.addConstraint(Sketcher.Constraint("Equal", 1, 2))
sketch14.addConstraint(Sketcher.Constraint("Equal", 2, 3))
sketch14.addConstraint(Sketcher.Constraint("Equal", 3, 4))
sketch14.addConstraint(Sketcher.Constraint("Equal", 4, 5))
sketch14.addConstraint(Sketcher.Constraint("Equal", 5, 6))
sketch14.addConstraint(Sketcher.Constraint("Equal", 6, 7))
sketch14.addConstraint(Sketcher.Constraint("Horizontal", 0, 3, 1, 3))
sketch14.addConstraint(Sketcher.Constraint("Horizontal", 1, 3, 2, 3))
sketch14.addConstraint(Sketcher.Constraint("Horizontal", 2, 3, 3, 3))
sketch14.addConstraint(Sketcher.Constraint("Horizontal", 3, 3, 4, 3))
sketch14.addConstraint(Sketcher.Constraint("Horizontal", 4, 3, 5, 3))
sketch14.addConstraint(Sketcher.Constraint("Horizontal", 5, 3, 6, 3))
sketch14.addConstraint(Sketcher.Constraint("Horizontal", 6, 3, 7, 3))
sketch14.addConstraint(Sketcher.Constraint("Diameter", 0, 2.0))
sketch14.addConstraint(Sketcher.Constraint("DistanceY", -1, 1, 0, 3, 20.0))
sketch14.addConstraint(Sketcher.Constraint("DistanceX", 1, 3, 0, 3, 20.0))
sketch14.addConstraint(Sketcher.Constraint("DistanceX", 2, 3, 1, 3, 14.0))
sketch14.addConstraint(Sketcher.Constraint("DistanceX", 3, 3, 2, 3, 20.0))
sketch14.addConstraint(Sketcher.Constraint("DistanceX", 4, 3, 3, 3, 14.0))
sketch14.addConstraint(Sketcher.Constraint("DistanceX", 5, 3, 4, 3, 20.0))
sketch14.addConstraint(Sketcher.Constraint("DistanceX", 6, 3, 5, 3, 14.0))
sketch14.addConstraint(Sketcher.Constraint("DistanceX", 7, 3, 6, 3, 20.0))
sketch14.addConstraint(Sketcher.Constraint("DistanceX", -1, 1, 0, 3, 65.215))
pocket10 = doc.addObject("PartDesign::Pocket", "Pocket009")
body.addObject(pocket10)
pocket10.Profile = sketch14
pocket10.Length = 10
pocket10.Reversed = True

doc.recompute()
